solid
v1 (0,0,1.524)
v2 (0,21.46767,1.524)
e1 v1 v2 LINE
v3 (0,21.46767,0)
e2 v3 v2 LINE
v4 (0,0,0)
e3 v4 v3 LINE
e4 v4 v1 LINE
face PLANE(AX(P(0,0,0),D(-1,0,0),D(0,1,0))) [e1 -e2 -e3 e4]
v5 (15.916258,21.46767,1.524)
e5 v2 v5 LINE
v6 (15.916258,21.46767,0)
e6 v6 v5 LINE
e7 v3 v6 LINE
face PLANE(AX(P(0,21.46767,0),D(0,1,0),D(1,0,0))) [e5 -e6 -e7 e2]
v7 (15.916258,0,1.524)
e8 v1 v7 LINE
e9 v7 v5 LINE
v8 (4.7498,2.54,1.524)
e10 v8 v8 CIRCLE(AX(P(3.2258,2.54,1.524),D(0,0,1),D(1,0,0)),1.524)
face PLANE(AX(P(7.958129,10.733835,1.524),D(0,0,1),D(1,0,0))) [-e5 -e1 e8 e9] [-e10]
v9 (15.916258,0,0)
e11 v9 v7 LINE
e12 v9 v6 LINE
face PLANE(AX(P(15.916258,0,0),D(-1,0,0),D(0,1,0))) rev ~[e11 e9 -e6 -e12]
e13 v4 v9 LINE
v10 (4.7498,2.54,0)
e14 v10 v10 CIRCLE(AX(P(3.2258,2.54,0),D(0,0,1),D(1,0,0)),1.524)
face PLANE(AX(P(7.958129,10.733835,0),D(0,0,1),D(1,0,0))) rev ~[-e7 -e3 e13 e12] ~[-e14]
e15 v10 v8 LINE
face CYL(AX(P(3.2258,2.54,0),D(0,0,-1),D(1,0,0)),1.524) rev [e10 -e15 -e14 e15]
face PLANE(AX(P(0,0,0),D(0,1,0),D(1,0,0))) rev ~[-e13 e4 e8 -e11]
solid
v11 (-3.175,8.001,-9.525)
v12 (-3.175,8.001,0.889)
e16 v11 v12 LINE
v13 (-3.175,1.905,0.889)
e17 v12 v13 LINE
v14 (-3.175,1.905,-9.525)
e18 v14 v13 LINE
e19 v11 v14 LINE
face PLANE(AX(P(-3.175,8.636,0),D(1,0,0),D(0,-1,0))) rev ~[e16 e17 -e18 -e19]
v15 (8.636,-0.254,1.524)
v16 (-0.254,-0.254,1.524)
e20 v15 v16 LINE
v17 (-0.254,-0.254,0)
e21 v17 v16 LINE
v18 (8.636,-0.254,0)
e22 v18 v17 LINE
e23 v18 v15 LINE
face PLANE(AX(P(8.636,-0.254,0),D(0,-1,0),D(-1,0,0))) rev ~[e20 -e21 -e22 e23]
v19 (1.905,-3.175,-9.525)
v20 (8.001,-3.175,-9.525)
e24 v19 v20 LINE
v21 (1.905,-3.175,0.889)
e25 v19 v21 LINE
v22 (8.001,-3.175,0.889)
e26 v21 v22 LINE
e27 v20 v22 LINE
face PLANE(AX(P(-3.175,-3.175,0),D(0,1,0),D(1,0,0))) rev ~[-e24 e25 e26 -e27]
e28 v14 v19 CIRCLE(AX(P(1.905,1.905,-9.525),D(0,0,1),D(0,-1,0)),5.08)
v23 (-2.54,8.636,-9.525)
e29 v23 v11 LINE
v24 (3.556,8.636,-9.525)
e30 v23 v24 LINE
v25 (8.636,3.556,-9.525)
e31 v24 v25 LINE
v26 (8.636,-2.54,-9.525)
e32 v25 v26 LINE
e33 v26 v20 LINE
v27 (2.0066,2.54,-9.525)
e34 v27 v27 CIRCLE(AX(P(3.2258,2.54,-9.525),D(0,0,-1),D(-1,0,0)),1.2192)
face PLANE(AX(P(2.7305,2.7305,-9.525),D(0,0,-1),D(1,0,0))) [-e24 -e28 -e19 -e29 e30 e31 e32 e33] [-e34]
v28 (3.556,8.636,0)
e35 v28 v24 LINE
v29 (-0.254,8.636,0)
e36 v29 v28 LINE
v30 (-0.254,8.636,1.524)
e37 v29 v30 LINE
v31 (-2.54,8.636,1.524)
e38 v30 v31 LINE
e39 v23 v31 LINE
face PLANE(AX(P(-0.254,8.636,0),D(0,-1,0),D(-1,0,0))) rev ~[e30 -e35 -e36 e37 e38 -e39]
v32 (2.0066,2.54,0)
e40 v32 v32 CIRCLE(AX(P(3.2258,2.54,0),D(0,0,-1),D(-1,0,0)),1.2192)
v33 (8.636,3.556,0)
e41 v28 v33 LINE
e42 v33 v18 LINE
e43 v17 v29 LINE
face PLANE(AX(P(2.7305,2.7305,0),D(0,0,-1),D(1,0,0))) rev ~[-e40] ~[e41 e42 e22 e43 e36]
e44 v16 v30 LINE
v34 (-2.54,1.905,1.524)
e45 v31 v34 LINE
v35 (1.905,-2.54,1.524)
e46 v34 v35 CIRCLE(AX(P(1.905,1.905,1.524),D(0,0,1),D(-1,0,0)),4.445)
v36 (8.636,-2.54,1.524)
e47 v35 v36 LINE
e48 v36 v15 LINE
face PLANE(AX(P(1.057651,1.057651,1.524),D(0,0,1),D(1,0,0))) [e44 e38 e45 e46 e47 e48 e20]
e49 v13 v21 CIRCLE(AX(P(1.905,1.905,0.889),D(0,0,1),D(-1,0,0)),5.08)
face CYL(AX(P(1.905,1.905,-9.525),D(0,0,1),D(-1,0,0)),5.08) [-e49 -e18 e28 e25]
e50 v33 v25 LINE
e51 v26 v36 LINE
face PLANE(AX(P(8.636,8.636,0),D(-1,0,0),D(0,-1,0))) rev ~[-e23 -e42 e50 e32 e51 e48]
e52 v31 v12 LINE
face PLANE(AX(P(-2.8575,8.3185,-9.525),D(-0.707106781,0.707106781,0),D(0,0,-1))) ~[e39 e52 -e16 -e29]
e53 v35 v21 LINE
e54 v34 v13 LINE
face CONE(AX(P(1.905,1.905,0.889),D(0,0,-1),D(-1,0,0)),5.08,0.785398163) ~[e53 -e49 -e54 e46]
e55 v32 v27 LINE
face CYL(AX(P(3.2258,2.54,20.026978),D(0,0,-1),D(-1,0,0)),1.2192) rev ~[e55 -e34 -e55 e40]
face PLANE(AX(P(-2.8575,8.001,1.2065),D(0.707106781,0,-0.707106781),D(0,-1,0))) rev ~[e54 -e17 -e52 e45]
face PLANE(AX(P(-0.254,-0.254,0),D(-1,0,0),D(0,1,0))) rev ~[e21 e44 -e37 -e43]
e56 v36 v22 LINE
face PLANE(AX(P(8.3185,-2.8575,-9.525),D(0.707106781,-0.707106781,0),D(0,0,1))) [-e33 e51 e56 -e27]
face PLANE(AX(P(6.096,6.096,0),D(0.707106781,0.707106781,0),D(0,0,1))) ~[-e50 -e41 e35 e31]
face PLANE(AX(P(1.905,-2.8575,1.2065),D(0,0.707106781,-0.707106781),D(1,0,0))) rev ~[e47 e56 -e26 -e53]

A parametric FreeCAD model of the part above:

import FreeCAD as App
import Part
import Sketcher

V = App.Vector
Q = App.Units.Quantity


def edges_at(feature, points):
    """Names of the edges that pass closest to the given points."""
    edges = feature.Shape.Edges
    near = lambda p: min(range(len(edges)), key=lambda i: edges[i].distToShape(Part.Vertex(*p))[0])
    return sorted({f"Edge{near(p) + 1}" for p in points})


def add_polygon(sketch, points):
    """Adds a closed chain of lines whose ends are joined by coincident constraints."""
    first, n = sketch.GeometryCount, len(points)
    for a, b in zip(points, points[1:] + points[:1]):
        sketch.addGeometry(Part.LineSegment(App.Vector(*a, 0), App.Vector(*b, 0)), False)
    for i in range(n):
        sketch.addConstraint(Sketcher.Constraint("Coincident", first + i, 2, first + (i + 1) % n, 1))

doc = App.newDocument("Part")
body = doc.addObject("PartDesign::Body", "Body")

# Sketch on XY plane
sketch1 = doc.addObject("Sketcher::SketchObject", "Sketch")
body.addObject(sketch1)
sketch1.AttachmentSupport = (doc.XY_Plane, [""])
sketch1.MapMode = "FlatFace"
add_polygon(sketch1, [(0, 21.5), (0, 0), (15.9, 0), (15.9, 21.5)])  # lines 0-3
sketch1.addGeometry(Part.Circle(V(3.2, 2.5, 0), V(0, 0, 1), 1.5), False)  # 4
sketch1.addConstraint([
    Sketcher.Constraint("Vertical", 0),
    Sketcher.Constraint("Horizontal", 1),
    Sketcher.Constraint("Vertical", 2),
    Sketcher.Constraint("Horizontal", 3),
    Sketcher.Constraint("Coincident", 0, 2, -1, 1),
    Sketcher.Constraint("Diameter", 4, Q("0.12 in")),
    Sketcher.Constraint("DistanceY", -1, 1, 4, 3, Q("0.1 in")),
    Sketcher.Constraint("DistanceX", -1, 1, 4, 3, Q("0.127 in")),
    Sketcher.Constraint("DistanceX", 1, 1, 1, 2, 15.916258),
    Sketcher.Constraint("DistanceY", 0, 2, 0, 1, 21.46767),
])
pad1 = doc.addObject("PartDesign::Pad", "Pad")
body.addObject(pad1)
pad1.Profile = sketch1
pad1.Length = Q("0.06 in")
body2 = doc.addObject("PartDesign::Body", "Body001")

# Sketch on XY plane
sketch2 = doc.addObject("Sketcher::SketchObject", "Sketch001")
body2.addObject(sketch2)
sketch2.AttachmentSupport = (doc.getObject("XY_Plane001"), [""])
sketch2.MapMode = "FlatFace"
add_polygon(sketch2, [(-3, -3), (-3, 9), (9, 9), (9, -3)])  # lines 0-3
sketch2.addConstraint([
    Sketcher.Constraint("Vertical", 0),
    Sketcher.Constraint("Horizontal", 1),
    Sketcher.Constraint("Vertical", 2),
    Sketcher.Constraint("Horizontal", 3),
    Sketcher.Constraint("Equal", 3, 0),
    Sketcher.Constraint("DistanceX", 1, 1, 1, 2, Q("0.465 in")),
    Sketcher.Constraint("DistanceY", -1, 1, 0, 2, Q("0.34 in")),
    Sketcher.Constraint("DistanceX", -1, 1, 1, 2, Q("0.34 in")),
])
pad2 = doc.addObject("PartDesign::Pad", "Pad001")
body2.addObject(pad2)
pad2.Profile = sketch2
pad2.Length = Q("0.375 in")
pad2.Reversed = True

# Sketch on XY plane
sketch3 = doc.addObject("Sketcher::SketchObject", "Sketch002")
body2.addObject(sketch3)
sketch3.AttachmentSupport = (doc.getObject("XY_Plane001"), [""])
sketch3.MapMode = "FlatFace"
add_polygon(sketch3, [(-0.3, 8.6), (-3.2, 8.6), (-3.2, -3.2), (8.6, -3.2), (8.6, -0.3), (-0.3, -0.3)])  # lines 0-5
sketch3.addConstraint([
    Sketcher.Constraint("Horizontal", 0),
    Sketcher.Constraint("Vertical", 1),
    Sketcher.Constraint("Horizontal", 2),
    Sketcher.Constraint("Vertical", 3),
    Sketcher.Constraint("Horizontal", 4),
    Sketcher.Constraint("Vertical", 5),
    Sketcher.Constraint("Equal", 2, 1),
    Sketcher.Constraint("Equal", 0, 3),
    Sketcher.Constraint("DistanceX", 4, 2, 4, 1, Q("0.35 in")),
    Sketcher.Constraint("DistanceX", 0, 2, 0, 1, Q("0.115 in")),
    Sketcher.Constraint("DistanceY", -1, 1, 0, 2, Q("0.34 in")),
    Sketcher.Constraint("DistanceX", -1, 1, 2, 2, Q("0.34 in")),
])
pad3 = doc.addObject("PartDesign::Pad", "Pad002")
body2.addObject(pad3)
pad3.Profile = sketch3
pad3.Length = Q("0.06 in")

# Sketch on XY plane
sketch4 = doc.addObject("Sketcher::SketchObject", "Sketch003")
body2.addObject(sketch4)
sketch4.AttachmentSupport = (doc.getObject("XY_Plane001"), [""])
sketch4.MapMode = "FlatFace"
sketch4.addGeometry(Part.Circle(V(3.2, 2.5, 0), V(0, 0, 1), 1.2), False)
sketch4.addConstraint([
    Sketcher.Constraint("Diameter", 0, Q("0.096 in")),
    Sketcher.Constraint("DistanceY", -1, 1, 0, 3, Q("0.1 in")),
    Sketcher.Constraint("DistanceX", -1, 1, 0, 3, Q("0.127 in")),
])
doc.recompute()
hole = doc.addObject("PartDesign::Hole", "Hole")
body2.addObject(hole)
hole.Profile = sketch4
hole.ThreadType = "None"
hole.Diameter = Q("0.096 in")
hole.DepthType = "ThroughAll"
doc.recompute()

fillet = doc.addObject("PartDesign::Fillet", "Fillet")
body2.addObject(fillet)
fillet.Base = (hole, edges_at(hole, [(-3.175, -3.175, -4)]))
fillet.Radius = Q("0.2 in")
doc.recompute()

chamfer = doc.addObject("PartDesign::Chamfer", "Chamfer")
body2.addObject(chamfer)
chamfer.Base = (fillet, edges_at(fillet, [(8.636, 8.636, -4.763)]))
chamfer.Size = Q("0.2 in")
doc.recompute()

chamfer2 = doc.addObject("PartDesign::Chamfer", "Chamfer001")
body2.addObject(chamfer2)
chamfer2.Base = (chamfer, edges_at(chamfer, [(8.636, -3.175, -4), (-3.175, 8.636, -4)]))
chamfer2.Size = Q("0.025 in")
doc.recompute()

chamfer3 = doc.addObject("PartDesign::Chamfer", "Chamfer002")
body2.addObject(chamfer3)
chamfer3.Base = (chamfer2, edges_at(chamfer2, [(4.953, -3.175, 1.524), (-1.687, -1.687, 1.524), (-3.175, 4.953, 1.524)]))
chamfer3.Size = Q("0.025 in")

doc.recompute()
